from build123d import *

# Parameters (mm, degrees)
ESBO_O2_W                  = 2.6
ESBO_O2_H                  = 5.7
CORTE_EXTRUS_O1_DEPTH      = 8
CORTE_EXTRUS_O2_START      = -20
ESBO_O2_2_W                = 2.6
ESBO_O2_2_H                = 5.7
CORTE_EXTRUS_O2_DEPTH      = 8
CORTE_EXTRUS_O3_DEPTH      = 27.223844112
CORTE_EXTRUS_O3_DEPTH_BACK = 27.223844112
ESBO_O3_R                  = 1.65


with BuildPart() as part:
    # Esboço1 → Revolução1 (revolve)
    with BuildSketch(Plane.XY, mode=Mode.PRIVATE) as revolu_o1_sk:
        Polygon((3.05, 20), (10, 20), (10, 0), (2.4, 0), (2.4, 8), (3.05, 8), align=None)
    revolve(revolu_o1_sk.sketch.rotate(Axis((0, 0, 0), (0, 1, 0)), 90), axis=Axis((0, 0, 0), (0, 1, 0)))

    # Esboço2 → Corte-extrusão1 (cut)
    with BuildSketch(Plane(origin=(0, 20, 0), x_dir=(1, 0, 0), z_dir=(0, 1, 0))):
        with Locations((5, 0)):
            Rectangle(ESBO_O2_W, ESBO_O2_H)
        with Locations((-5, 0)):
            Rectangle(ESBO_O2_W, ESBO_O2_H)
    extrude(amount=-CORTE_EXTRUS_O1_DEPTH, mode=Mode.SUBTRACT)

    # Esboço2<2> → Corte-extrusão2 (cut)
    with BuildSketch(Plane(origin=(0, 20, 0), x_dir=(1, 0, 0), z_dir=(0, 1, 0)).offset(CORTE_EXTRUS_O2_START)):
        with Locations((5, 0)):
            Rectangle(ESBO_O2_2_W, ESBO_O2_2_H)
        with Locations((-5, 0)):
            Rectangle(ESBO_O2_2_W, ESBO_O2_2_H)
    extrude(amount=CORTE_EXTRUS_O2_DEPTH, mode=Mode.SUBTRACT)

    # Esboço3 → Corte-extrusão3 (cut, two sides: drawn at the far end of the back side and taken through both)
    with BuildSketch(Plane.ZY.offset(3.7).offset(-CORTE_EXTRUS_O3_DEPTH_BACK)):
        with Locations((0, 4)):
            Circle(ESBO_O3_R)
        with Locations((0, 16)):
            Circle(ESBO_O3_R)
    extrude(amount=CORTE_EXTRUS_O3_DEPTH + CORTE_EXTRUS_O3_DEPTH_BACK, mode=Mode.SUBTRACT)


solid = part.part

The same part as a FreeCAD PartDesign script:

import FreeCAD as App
import Part
import Sketcher

V = App.Vector
Q = App.Units.Quantity


def add_polygon(sketch, points):
    """Adds a closed chain of lines whose ends are joined by coincident constraints."""
    first, n = sketch.GeometryCount, len(points)
    for a, b in zip(points, points[1:] + points[:1]):
        sketch.addGeometry(Part.LineSegment(App.Vector(*a, 0), App.Vector(*b, 0)), False)
    for i in range(n):
        sketch.addConstraint(Sketcher.Constraint("Coincident", first + i, 2, first + (i + 1) % n, 1))

doc = App.newDocument("Part")
body = doc.addObject("PartDesign::Body", "Body")

# Sketch on XY plane
sketch1 = doc.addObject("Sketcher::SketchObject", "Sketch")
body.addObject(sketch1)
sketch1.AttachmentSupport = (doc.XY_Plane, [""])
sketch1.MapMode = "FlatFace"
add_polygon(sketch1, [(10, 20), (3.05, 20), (3.05, 8), (2.4, 8), (2.4, 0), (10, 0)])  # lines 0-5
sketch1.addConstraint([
    Sketcher.Constraint("Horizontal", 0),
    Sketcher.Constraint("Vertical", 1),
    Sketcher.Constraint("Horizontal", 2),
    Sketcher.Constraint("Vertical", 3),
    Sketcher.Constraint("Horizontal", 4),
    Sketcher.Constraint("Vertical", 5),
    Sketcher.Constraint("PointOnObject", 3, 2, -1),
    Sketcher.Constraint("DistanceY", 1, 2, 1, 1, Q("12 mm")),
    Sketcher.Constraint("DistanceY", 3, 2, 3, 1, Q("8 mm")),
    Sketcher.Constraint("DistanceX", 4, 1, 4, 2, Q("7.6 mm")),
    Sketcher.Constraint("DistanceX", -1, 1, 4, 2, Q("10 mm")),
    Sketcher.Constraint("DistanceX", 0, 2, 0, 1, Q("6.95 mm")),
])
revolution = doc.addObject("PartDesign::Revolution", "Revolution")
body.addObject(revolution)
revolution.Profile = sketch1
revolution.ReferenceAxis = (sketch1, ["V_Axis"])
revolution.Angle = 360

# Sketch on XZ plane
sketch2 = doc.addObject("Sketcher::SketchObject", "Sketch001")
body.addObject(sketch2)
sketch2.AttachmentSupport = (doc.XZ_Plane, [""])
sketch2.MapMode = "FlatFace"
sketch2.AttachmentOffset = App.Placement(V(0, 0, -20), App.Rotation())
add_polygon(sketch2, [(3.7, -2.85), (3.7, 2.85), (6.3, 2.85), (6.3, -2.85)])  # lines 0-3
add_polygon(sketch2, [(-6.3, -2.85), (-6.3, 2.85), (-3.7, 2.85), (-3.7, -2.85)])  # lines 4-7
sketch2.addConstraint([
    Sketcher.Constraint("Vertical", 0),
    Sketcher.Constraint("Horizontal", 1),
    Sketcher.Constraint("Vertical", 2),
    Sketcher.Constraint("Horizontal", 3),
    Sketcher.Constraint("Vertical", 4),
    Sketcher.Constraint("Horizontal", 5),
    Sketcher.Constraint("Vertical", 6),
    Sketcher.Constraint("Horizontal", 7),
    Sketcher.Constraint("Symmetric", 2, 2, 4, 2, -1, 1),
    Sketcher.Constraint("Symmetric", 0, 2, 6, 2, -1, 1),
    Sketcher.Constraint("Horizontal", 1, 2, 4, 2),
    Sketcher.Constraint("DistanceX", 1, 1, 1, 2, Q("2.6 mm")),
    Sketcher.Constraint("DistanceY", 0, 1, 0, 2, Q("5.7 mm")),
    Sketcher.Constraint("DistanceX", 4, 2, 0, 2, Q("10 mm")),
])
pocket1 = doc.addObject("PartDesign::Pocket", "Pocket")
body.addObject(pocket1)
pocket1.Profile = sketch2
pocket1.Length = 8
pocket1.Reversed = True

# Sketch on XZ plane
sketch3 = doc.addObject("Sketcher::SketchObject", "Sketch002")
body.addObject(sketch3)
sketch3.AttachmentSupport = (doc.XZ_Plane, [""])
sketch3.MapMode = "FlatFace"
add_polygon(sketch3, [(3.7, -2.85), (3.7, 2.85), (6.3, 2.85), (6.3, -2.85)])  # lines 0-3
add_polygon(sketch3, [(-6.3, -2.85), (-6.3, 2.85), (-3.7, 2.85), (-3.7, -2.85)])  # lines 4-7
sketch3.addConstraint([
    Sketcher.Constraint("Vertical", 0),
    Sketcher.Constraint("Horizontal", 1),
    Sketcher.Constraint("Vertical", 2),
    Sketcher.Constraint("Horizontal", 3),
    Sketcher.Constraint("Vertical", 4),
    Sketcher.Constraint("Horizontal", 5),
    Sketcher.Constraint("Vertical", 6),
    Sketcher.Constraint("Horizontal", 7),
    Sketcher.Constraint("Symmetric", 2, 2, 4, 2, -1, 1),
    Sketcher.Constraint("Symmetric", 0, 2, 6, 2, -1, 1),
    Sketcher.Constraint("Horizontal", 1, 2, 4, 2),
    Sketcher.Constraint("DistanceX", 1, 1, 1, 2, Q("2.6 mm")),
    Sketcher.Constraint("DistanceY", 0, 1, 0, 2, Q("5.7 mm")),
    Sketcher.Constraint("DistanceX", 4, 2, 0, 2, Q("10 mm")),
])
pocket2 = doc.addObject("PartDesign::Pocket", "Pocket001")
body.addObject(pocket2)
pocket2.Profile = sketch3
pocket2.Length = 8

# Sketch on YZ plane
sketch4 = doc.addObject("Sketcher::SketchObject", "Sketch003")
body.addObject(sketch4)
sketch4.AttachmentSupport = (doc.YZ_Plane, [""])
sketch4.MapMode = "FlatFace"
sketch4.AttachmentOffset = App.Placement(V(0, 0, -3.7), App.Rotation())
sketch4.addGeometry([
    Part.Circle(V(4, 0, 0), V(0, 0, 1), 1.65),
    Part.Circle(V(16, 0, 0), V(0, 0, 1), 1.65),
], False)
sketch4.addConstraint([
    Sketcher.Constraint("Equal", 0, 1),
    Sketcher.Constraint("PointOnObject", 0, 3, -1),
    Sketcher.Constraint("PointOnObject", 1, 3, -1),
    Sketcher.Constraint("Diameter", 0, Q("3.3 mm")),
    Sketcher.Constraint("DistanceX", -1, 1, 0, 3, Q("4 mm")),
    Sketcher.Constraint("DistanceX", -1, 1, 1, 3, Q("16 mm")),
])
pocket3 = doc.addObject("PartDesign::Pocket", "Pocket002")
body.addObject(pocket3)
pocket3.Profile = sketch4
pocket3.Type = "ThroughAll"
pocket3.Midplane = True

doc.recompute()
